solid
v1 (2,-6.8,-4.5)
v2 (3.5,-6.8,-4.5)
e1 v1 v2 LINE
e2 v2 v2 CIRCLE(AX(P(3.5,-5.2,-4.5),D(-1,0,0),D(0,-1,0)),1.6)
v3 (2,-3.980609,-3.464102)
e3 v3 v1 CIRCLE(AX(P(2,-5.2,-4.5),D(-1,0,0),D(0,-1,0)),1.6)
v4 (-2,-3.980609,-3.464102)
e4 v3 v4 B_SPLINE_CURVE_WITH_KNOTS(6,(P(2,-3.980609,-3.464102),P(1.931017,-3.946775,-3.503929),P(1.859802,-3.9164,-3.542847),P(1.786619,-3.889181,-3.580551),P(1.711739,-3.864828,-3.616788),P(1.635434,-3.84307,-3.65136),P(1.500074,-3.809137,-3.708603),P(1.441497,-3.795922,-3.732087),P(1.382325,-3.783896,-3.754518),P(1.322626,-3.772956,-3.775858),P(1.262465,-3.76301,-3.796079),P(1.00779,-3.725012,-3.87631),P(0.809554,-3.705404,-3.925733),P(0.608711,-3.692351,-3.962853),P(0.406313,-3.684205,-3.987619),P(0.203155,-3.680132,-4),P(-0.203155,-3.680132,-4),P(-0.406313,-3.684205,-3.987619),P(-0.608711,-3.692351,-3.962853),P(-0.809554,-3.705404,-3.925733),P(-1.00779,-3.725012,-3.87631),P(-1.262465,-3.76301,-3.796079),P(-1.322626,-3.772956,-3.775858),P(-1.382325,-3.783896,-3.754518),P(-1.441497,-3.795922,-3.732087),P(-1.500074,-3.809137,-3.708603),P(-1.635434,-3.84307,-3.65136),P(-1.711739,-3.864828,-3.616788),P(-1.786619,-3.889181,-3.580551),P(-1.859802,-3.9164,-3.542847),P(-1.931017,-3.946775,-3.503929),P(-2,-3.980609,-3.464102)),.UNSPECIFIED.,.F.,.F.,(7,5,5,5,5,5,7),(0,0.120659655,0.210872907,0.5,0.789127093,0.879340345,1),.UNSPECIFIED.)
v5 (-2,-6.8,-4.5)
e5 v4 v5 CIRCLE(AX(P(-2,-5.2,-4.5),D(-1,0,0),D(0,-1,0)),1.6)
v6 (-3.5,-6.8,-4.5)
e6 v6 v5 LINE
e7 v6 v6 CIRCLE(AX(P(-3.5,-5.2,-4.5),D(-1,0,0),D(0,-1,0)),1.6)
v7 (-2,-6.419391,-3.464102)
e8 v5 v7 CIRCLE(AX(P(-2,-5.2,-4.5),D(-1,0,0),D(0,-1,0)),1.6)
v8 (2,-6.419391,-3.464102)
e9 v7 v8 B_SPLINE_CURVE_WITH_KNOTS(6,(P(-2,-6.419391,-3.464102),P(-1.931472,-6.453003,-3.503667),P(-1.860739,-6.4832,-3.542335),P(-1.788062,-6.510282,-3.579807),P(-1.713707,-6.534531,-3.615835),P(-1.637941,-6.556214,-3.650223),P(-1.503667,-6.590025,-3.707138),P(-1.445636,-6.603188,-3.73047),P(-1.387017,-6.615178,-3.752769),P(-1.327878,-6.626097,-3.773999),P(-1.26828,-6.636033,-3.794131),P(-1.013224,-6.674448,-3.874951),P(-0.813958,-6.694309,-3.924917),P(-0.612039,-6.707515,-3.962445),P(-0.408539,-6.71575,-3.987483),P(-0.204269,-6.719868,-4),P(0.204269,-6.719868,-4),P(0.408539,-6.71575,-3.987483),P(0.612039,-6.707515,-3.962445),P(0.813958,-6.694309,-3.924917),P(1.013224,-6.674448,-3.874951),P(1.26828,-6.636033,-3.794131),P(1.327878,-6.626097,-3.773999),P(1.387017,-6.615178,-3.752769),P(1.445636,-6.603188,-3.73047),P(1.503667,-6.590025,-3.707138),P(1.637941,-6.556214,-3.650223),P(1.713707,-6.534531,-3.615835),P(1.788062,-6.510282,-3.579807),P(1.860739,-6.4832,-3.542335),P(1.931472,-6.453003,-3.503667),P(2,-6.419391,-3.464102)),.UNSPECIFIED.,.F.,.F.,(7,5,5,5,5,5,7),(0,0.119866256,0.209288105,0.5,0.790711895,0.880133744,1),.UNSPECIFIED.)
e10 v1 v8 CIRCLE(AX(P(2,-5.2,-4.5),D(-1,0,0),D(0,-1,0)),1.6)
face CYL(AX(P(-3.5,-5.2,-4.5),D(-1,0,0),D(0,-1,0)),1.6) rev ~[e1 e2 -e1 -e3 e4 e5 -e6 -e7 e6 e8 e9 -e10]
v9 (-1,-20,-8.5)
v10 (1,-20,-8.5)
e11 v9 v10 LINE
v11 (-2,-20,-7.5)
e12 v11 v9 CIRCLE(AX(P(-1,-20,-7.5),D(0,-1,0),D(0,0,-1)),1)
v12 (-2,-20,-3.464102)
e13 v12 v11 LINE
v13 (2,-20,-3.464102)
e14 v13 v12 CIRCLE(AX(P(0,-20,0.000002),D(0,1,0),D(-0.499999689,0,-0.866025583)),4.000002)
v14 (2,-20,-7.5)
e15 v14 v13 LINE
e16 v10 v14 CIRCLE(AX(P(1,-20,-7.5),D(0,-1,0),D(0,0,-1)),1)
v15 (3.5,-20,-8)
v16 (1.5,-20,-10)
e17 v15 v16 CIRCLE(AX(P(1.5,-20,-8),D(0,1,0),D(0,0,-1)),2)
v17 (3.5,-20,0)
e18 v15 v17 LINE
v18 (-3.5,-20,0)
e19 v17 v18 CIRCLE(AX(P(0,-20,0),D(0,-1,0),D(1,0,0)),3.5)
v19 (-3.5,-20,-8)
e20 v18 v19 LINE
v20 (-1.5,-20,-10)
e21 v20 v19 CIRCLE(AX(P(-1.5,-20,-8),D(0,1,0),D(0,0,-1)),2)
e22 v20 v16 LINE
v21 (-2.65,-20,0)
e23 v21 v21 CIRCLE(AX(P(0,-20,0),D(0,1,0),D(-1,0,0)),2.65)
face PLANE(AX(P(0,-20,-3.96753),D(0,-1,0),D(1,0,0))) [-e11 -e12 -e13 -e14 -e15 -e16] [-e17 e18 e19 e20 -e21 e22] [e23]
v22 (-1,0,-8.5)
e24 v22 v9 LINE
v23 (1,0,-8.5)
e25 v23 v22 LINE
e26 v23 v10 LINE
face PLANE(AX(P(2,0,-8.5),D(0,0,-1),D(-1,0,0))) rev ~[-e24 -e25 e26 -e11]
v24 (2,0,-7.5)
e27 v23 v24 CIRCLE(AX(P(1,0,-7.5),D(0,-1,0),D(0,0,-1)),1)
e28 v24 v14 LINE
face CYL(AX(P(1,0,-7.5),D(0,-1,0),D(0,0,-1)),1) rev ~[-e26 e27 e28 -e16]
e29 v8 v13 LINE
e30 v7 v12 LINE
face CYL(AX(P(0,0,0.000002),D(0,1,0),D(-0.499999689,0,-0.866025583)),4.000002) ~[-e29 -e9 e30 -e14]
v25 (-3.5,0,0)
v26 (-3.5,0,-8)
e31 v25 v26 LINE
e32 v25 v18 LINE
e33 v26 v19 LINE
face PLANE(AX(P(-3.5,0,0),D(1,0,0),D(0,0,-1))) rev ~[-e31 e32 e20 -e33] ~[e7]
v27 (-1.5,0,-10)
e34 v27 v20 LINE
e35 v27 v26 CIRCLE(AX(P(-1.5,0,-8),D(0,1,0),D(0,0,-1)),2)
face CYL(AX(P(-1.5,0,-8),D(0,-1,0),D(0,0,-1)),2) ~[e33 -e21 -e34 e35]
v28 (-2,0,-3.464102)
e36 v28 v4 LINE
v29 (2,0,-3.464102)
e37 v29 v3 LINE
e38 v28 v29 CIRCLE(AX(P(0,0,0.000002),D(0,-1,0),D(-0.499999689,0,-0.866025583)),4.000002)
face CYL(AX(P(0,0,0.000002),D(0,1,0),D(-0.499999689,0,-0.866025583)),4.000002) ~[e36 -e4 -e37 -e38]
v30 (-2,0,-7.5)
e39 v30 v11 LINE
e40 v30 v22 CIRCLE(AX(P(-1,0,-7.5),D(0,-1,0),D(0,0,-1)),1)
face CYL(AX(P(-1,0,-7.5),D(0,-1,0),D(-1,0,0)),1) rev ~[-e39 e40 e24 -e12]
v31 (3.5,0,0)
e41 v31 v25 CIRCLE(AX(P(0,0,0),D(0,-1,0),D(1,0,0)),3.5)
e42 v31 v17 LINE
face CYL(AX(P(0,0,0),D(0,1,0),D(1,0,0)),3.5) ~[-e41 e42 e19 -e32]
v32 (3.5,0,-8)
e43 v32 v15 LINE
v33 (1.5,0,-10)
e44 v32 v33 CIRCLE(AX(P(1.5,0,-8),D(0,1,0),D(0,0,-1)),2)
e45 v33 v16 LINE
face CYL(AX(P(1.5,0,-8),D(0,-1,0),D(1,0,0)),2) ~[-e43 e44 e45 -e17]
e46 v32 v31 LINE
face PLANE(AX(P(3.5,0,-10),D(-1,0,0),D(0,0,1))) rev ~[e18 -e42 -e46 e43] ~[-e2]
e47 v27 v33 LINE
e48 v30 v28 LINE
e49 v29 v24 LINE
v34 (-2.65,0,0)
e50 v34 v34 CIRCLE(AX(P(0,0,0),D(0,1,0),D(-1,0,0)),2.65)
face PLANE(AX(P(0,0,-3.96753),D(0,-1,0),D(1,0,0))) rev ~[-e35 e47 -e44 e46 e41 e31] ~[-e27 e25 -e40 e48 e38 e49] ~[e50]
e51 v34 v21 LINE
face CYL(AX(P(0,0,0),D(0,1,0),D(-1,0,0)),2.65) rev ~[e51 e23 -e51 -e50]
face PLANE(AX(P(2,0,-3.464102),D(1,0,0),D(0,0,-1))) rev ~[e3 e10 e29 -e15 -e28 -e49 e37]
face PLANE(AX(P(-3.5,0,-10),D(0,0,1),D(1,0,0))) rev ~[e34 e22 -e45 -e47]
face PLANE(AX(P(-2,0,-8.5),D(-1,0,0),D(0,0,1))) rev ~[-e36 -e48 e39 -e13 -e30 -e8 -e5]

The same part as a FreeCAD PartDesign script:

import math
import FreeCAD as App
import Part
import Sketcher
from FreeCAD import Vector
Q = App.Units.Quantity


def edges_at(feature, points):
    """Names of the edges that pass closest to the given points."""
    edges = feature.Shape.Edges
    near = lambda p: min(range(len(edges)), key=lambda i: edges[i].distToShape(Part.Vertex(*p))[0])
    return sorted({f"Edge{near(p) + 1}" for p in points})

doc = App.newDocument("Part")
body = doc.addObject("PartDesign::Body", "Body")

# Sketch on XZ plane
sketch1 = body.newObject("Sketcher::SketchObject", "Sketch")
sketch1.AttachmentSupport = (doc.getObject("XZ_Plane"), [""])
sketch1.MapMode = "FlatFace"
sketch1.addGeometry([
    Part.LineSegment(Vector(3.5, -10, 0), Vector(3.5, 0, 0)),
    Part.ArcOfCircle(Part.Circle(Vector(0, 0, 0), Vector(0, 0, 1), 3.5), math.radians(0), math.radians(180)),
    Part.LineSegment(Vector(-3.5, 0, 0), Vector(-3.5, -10, 0)),
    Part.LineSegment(Vector(-3.5, -10, 0), Vector(3.5, -10, 0)),
], False)
sketch1.addConstraint([
    Sketcher.Constraint("Tangent", 0, 2, 1, 1),
    Sketcher.Constraint("Tangent", 1, 2, 2, 1),
    Sketcher.Constraint("Coincident", 2, 2, 3, 1),
    Sketcher.Constraint("Coincident", 3, 2, 0, 1),
    Sketcher.Constraint("Vertical", 0),
    Sketcher.Constraint("Vertical", 2),
    Sketcher.Constraint("Horizontal", 3),
    Sketcher.Constraint("Coincident", 1, 3, -1, 1),
    Sketcher.Constraint("Radius", 1, Q("3.5 mm")),
    Sketcher.Constraint("DistanceY", 0, 1, 0, 2, Q("10 mm")),
])
pad1 = body.newObject("PartDesign::Pad", "Pad")
pad1.Profile = sketch1
pad1.Length = 20

# Sketch on XZ plane
sketch2 = body.newObject("Sketcher::SketchObject", "Sketch001")
sketch2.AttachmentSupport = (doc.getObject("XZ_Plane"), [""])
sketch2.MapMode = "FlatFace"
sketch2.addGeometry([
    Part.Circle(Vector(0, 0, 0), Vector(0, 0, 1), 2.65),  # 0
    Part.ArcOfCircle(Part.Circle(Vector(0, 0.000002, 0), Vector(0, 0, 1), 4.000002), math.radians(-119.999979), math.radians(-60.000021)),  # 1
    Part.LineSegment(Vector(2, -3.464102, 0), Vector(2, -8.5, 0)),  # 2
    Part.LineSegment(Vector(2, -8.5, 0), Vector(-2, -8.5, 0)),  # 3
    Part.LineSegment(Vector(-2, -8.5, 0), Vector(-2, -3.464102, 0)),  # 4
], False)
sketch2.addConstraint([
    Sketcher.Constraint("Coincident", 1, 2, 2, 1),
    Sketcher.Constraint("Coincident", 2, 2, 3, 1),
    Sketcher.Constraint("Coincident", 3, 2, 4, 1),
    Sketcher.Constraint("Coincident", 4, 2, 1, 1),
    Sketcher.Constraint("Vertical", 2),
    Sketcher.Constraint("Horizontal", 3),
    Sketcher.Constraint("Vertical", 4),
    Sketcher.Constraint("Coincident", 0, 3, -1, 1),
    Sketcher.Constraint("Coincident", 1, 3, -1, 1),
    Sketcher.Constraint("Horizontal", 1, 2, 4, 2),
    Sketcher.Constraint("Diameter", 0, Q("5.3 mm")),
    Sketcher.Constraint("DistanceX", 3, 2, 3, 1, Q("4 mm")),
    Sketcher.Constraint("DistanceY", 2, 2, -1, 1, Q("8.5 mm")),
    Sketcher.Constraint("Radius", 1, Q("4.000002 mm")),
])
pocket1 = body.newObject("PartDesign::Pocket", "Pocket")
pocket1.Profile = sketch2
pocket1.Type = "ThroughAll"
pocket1.Reversed = True

# Sketch on YZ plane
sketch3 = body.newObject("Sketcher::SketchObject", "Sketch002")
sketch3.AttachmentSupport = (doc.getObject("YZ_Plane"), [""])
sketch3.MapMode = "FlatFace"
sketch3.AttachmentOffset = App.Placement(Vector(0, 0, -3.5), App.Rotation())
sketch3.addGeometry(Part.Circle(Vector(-5.2, -4.5, 0), Vector(0, 0, 1), 1.6), False)
sketch3.addConstraint([
    Sketcher.Constraint("Diameter", 0, Q("3.2 mm")),
    Sketcher.Constraint("DistanceX", 0, 3, -1, 1, Q("5.2 mm")),
    Sketcher.Constraint("DistanceY", 0, 3, -1, 1, Q("4.5 mm")),
])
pocket2 = body.newObject("PartDesign::Pocket", "Pocket001")
pocket2.Profile = sketch3
pocket2.Type = "ThroughAll"
pocket2.Reversed = True
doc.recompute()

fillet = body.newObject("PartDesign::Fillet", "Fillet")
fillet.Base = (pocket2, edges_at(pocket2, [(-3.5, -10, -10), (3.5, -10, -10)]))
fillet.Radius = 2
doc.recompute()

fillet2 = body.newObject("PartDesign::Fillet", "Fillet001")
fillet2.Base = (fillet, edges_at(fillet, [(2, -10, -8.5), (-2, -10, -8.5)]))
fillet2.Radius = 1

doc.recompute()
